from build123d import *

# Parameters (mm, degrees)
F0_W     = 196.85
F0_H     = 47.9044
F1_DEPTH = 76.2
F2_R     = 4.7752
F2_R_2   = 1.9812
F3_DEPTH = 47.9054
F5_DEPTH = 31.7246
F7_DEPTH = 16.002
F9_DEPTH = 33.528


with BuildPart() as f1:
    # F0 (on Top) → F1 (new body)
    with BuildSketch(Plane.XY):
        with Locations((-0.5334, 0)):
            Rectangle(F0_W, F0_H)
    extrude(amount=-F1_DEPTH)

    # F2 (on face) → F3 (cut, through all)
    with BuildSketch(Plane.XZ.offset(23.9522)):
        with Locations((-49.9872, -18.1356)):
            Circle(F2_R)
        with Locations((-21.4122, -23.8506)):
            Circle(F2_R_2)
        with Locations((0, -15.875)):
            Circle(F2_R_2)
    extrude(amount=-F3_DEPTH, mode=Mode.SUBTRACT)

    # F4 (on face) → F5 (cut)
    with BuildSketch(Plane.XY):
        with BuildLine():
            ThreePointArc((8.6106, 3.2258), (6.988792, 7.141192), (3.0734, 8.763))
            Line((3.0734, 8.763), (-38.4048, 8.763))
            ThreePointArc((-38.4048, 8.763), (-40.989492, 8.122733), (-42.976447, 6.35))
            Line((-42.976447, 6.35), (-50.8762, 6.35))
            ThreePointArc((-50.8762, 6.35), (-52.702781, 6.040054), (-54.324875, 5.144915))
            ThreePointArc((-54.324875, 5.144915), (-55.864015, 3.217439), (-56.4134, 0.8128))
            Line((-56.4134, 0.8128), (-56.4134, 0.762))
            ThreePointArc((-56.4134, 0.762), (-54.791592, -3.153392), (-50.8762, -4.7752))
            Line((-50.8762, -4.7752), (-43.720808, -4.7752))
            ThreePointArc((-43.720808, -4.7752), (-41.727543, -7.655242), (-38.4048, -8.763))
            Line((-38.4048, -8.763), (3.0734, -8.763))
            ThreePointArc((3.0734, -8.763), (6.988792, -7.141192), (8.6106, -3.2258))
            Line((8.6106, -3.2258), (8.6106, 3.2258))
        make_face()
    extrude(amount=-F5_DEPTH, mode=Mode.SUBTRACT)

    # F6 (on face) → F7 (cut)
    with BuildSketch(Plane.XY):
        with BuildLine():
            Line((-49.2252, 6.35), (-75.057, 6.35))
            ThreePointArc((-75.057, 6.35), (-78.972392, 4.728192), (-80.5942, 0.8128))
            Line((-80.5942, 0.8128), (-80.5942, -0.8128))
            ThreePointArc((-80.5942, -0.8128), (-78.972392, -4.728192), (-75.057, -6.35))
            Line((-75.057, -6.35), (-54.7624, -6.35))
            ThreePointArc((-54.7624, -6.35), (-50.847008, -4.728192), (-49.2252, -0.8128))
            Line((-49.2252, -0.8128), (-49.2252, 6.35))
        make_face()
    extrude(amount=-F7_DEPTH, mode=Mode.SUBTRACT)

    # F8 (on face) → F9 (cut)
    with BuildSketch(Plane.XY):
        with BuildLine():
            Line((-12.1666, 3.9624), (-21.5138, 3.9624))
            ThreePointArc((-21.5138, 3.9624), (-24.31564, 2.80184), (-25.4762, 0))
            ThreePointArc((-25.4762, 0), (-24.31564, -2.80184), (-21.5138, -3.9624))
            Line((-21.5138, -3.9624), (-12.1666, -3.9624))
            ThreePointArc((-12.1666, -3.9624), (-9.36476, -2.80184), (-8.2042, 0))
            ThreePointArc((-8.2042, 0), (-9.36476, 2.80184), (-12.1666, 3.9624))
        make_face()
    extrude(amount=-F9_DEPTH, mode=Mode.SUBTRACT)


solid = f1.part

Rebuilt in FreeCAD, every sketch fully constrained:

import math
import FreeCAD as App
import Part
import Sketcher
from FreeCAD import Vector
Q = App.Units.Quantity

doc = App.newDocument("Part")
body = doc.addObject("PartDesign::Body", "Body")

# Sketch on XY plane
sketch1 = doc.addObject("Sketcher::SketchObject", "Sketch")
body.addObject(sketch1)
sketch1.AttachmentSupport = (doc.XY_Plane, [""])
sketch1.MapMode = "FlatFace"
sketch1.addGeometry([
    Part.LineSegment(Vector(-98.9584, 23.9522, 0), Vector(-98.9584, -23.9522, 0)),
    Part.LineSegment(Vector(-98.9584, -23.9522, 0), Vector(97.8916, -23.9522, 0)),
    Part.LineSegment(Vector(97.8916, -23.9522, 0), Vector(97.8916, 23.9522, 0)),
    Part.LineSegment(Vector(97.8916, 23.9522, 0), Vector(-98.9584, 23.9522, 0)),
], False)
sketch1.addConstraint([
    Sketcher.Constraint("Coincident", 0, 2, 1, 1),
    Sketcher.Constraint("Coincident", 1, 2, 2, 1),
    Sketcher.Constraint("Coincident", 2, 2, 3, 1),
    Sketcher.Constraint("Coincident", 3, 2, 0, 1),
    Sketcher.Constraint("Vertical", 0),
    Sketcher.Constraint("Horizontal", 1),
    Sketcher.Constraint("Vertical", 2),
    Sketcher.Constraint("Horizontal", 3),
    Sketcher.Constraint("DistanceX", 1, 1, 1, 2, Q("7.75 in")),
    Sketcher.Constraint("DistanceY", 0, 2, 0, 1, Q("1.886 in")),
    Sketcher.Constraint("DistanceX", 0, 2, -1, 1, Q("3.896 in")),
    Sketcher.Constraint("DistanceY", 0, 2, -1, 1, Q("0.943 in")),
])
pad1 = doc.addObject("PartDesign::Pad", "Pad")
body.addObject(pad1)
pad1.Profile = sketch1
pad1.Length = Q("3 in")
pad1.Reversed = True

# Sketch on XZ plane
sketch2 = doc.addObject("Sketcher::SketchObject", "Sketch001")
body.addObject(sketch2)
sketch2.AttachmentSupport = (doc.XZ_Plane, [""])
sketch2.MapMode = "FlatFace"
sketch2.AttachmentOffset = App.Placement(Vector(0, 0, 0.943 * 25.4), App.Rotation())
sketch2.addGeometry([
    Part.Circle(Vector(-49.9872, -18.1356, 0), Vector(0, 0, 1), 4.7752),
    Part.Circle(Vector(-21.4122, -23.8506, 0), Vector(0, 0, 1), 1.9812),
    Part.Circle(Vector(0, -15.875, 0), Vector(0, 0, 1), 1.9812),
], False)
sketch2.addConstraint([
    Sketcher.Constraint("Equal", 1, 2),
    Sketcher.Constraint("PointOnObject", 2, 3, -2),
    Sketcher.Constraint("Diameter", 0, Q("0.376 in")),
    Sketcher.Constraint("Diameter", 1, Q("0.156 in")),
    Sketcher.Constraint("DistanceX", 0, 3, -1, 1, Q("1.968 in")),
    Sketcher.Constraint("DistanceY", 0, 3, -1, 1, Q("0.714 in")),
    Sketcher.Constraint("DistanceX", 1, 3, -1, 1, Q("0.843 in")),
    Sketcher.Constraint("DistanceY", 1, 3, -1, 1, Q("0.939 in")),
    Sketcher.Constraint("DistanceY", 2, 3, -1, 1, Q("0.625 in")),
])
pocket1 = doc.addObject("PartDesign::Pocket", "Pocket")
body.addObject(pocket1)
pocket1.Profile = sketch2
pocket1.Type = "ThroughAll"

# Sketch on XY plane
sketch3 = doc.addObject("Sketcher::SketchObject", "Sketch002")
body.addObject(sketch3)
sketch3.AttachmentSupport = (doc.XY_Plane, [""])
sketch3.MapMode = "FlatFace"
sketch3.addGeometry([
    Part.ArcOfCircle(Part.Circle(Vector(3.073401, 3.225801, 0), Vector(0, 0, 1), 5.537199), math.radians(-0.000012), math.radians(90.000012)),  # 0
    Part.LineSegment(Vector(3.0734, 8.763, 0), Vector(-38.4048, 8.763, 0)),  # 1
    Part.ArcOfCircle(Part.Circle(Vector(-38.404801, 3.225802, 0), Vector(0, 0, 1), 5.537198), math.radians(89.999992), math.radians(145.651854)),  # 2
    Part.LineSegment(Vector(-42.976447, 6.35, 0), Vector(-50.8762, 6.35, 0)),  # 3
    Part.ArcOfCircle(Part.Circle(Vector(-50.8762, 0.812801, 0), Vector(0, 0, 1), 5.537199), math.radians(90.000001), math.radians(128.522321)),  # 4
    Part.ArcOfCircle(Part.Circle(Vector(-50.876205, 0.812802, 0), Vector(0, 0, 1), 5.537195), math.radians(128.522285), math.radians(180.000018)),  # 5
    Part.LineSegment(Vector(-56.4134, 0.8128, 0), Vector(-56.4134, 0.762, 0)),  # 6
    Part.ArcOfCircle(Part.Circle(Vector(-50.876201, 0.761999, 0), Vector(0, 0, 1), 5.537199), math.radians(179.999988), math.radians(270.000012)),  # 7
    Part.LineSegment(Vector(-50.8762, -4.7752, 0), Vector(-43.720808, -4.7752, 0)),  # 8
    Part.ArcOfCircle(Part.Circle(Vector(-38.404798, -3.225798, 0), Vector(0, 0, 1), 5.537202), math.radians(-163.750732), math.radians(-90.000016)),  # 9
    Part.LineSegment(Vector(-38.4048, -8.763, 0), Vector(3.0734, -8.763, 0)),  # 10
    Part.ArcOfCircle(Part.Circle(Vector(3.073401, -3.225801, 0), Vector(0, 0, 1), 5.537199), math.radians(-90.000012), math.radians(0.000012)),  # 11
    Part.LineSegment(Vector(8.6106, -3.2258, 0), Vector(8.6106, 3.2258, 0)),  # 12
], False)
sketch3.addConstraint([
    Sketcher.Constraint("Tangent", 0, 2, 1, 1),
    Sketcher.Constraint("Tangent", 1, 2, 2, 1),
    Sketcher.Constraint("Coincident", 2, 2, 3, 1),
    Sketcher.Constraint("Tangent", 3, 2, 4, 1),
    Sketcher.Constraint("Tangent", 4, 2, 5, 1),
    Sketcher.Constraint("Tangent", 5, 2, 6, 1),
    Sketcher.Constraint("Tangent", 6, 2, 7, 1),
    Sketcher.Constraint("Tangent", 7, 2, 8, 1),
    Sketcher.Constraint("Coincident", 8, 2, 9, 1),
    Sketcher.Constraint("Tangent", 9, 2, 10, 1),
    Sketcher.Constraint("Tangent", 10, 2, 11, 1),
    Sketcher.Constraint("Tangent", 11, 2, 12, 1),
    Sketcher.Constraint("Tangent", 12, 2, 0, 1),
    Sketcher.Constraint("Horizontal", 1),
    Sketcher.Constraint("Horizontal", 3),
    Sketcher.Constraint("Vertical", 6),
    Sketcher.Constraint("Horizontal", 8),
    Sketcher.Constraint("Horizontal", 10),
    Sketcher.Constraint("Vertical", 12),
    Sketcher.Constraint("Equal", 0, 2),
    Sketcher.Constraint("Equal", 2, 4),
    Sketcher.Constraint("Equal", 4, 7),
    Sketcher.Constraint("Equal", 7, 11),
    Sketcher.Constraint("Symmetric", 2, 3, 9, 3, -1),
    Sketcher.Constraint("Horizontal", 4, 3, 5, 2),
    Sketcher.Constraint("Horizontal", 9, 3, 11, 2),
    Sketcher.Constraint("Radius", 0, Q("0.218 in")),
    Sketcher.Constraint("DistanceX", 1, 2, 1, 1, Q("1.633 in")),
    Sketcher.Constraint("DistanceY", 6, 2, 6, 1, Q("0.002 in")),
    Sketcher.Constraint("DistanceY", 12, 1, 12, 2, Q("0.254 in")),
    Sketcher.Constraint("DistanceY", -1, 1, 7, 3, Q("0.03 in")),
    Sketcher.Constraint("DistanceX", -1, 1, 0, 3, Q("0.121 in")),
    Sketcher.Constraint("DistanceX", 4, 3, -1, 1, Q("2.003 in")),
    Sketcher.Constraint("DistanceX", 4, 2, 5, 3, 3.44867),
])
pocket2 = doc.addObject("PartDesign::Pocket", "Pocket001")
body.addObject(pocket2)
pocket2.Profile = sketch3
pocket2.Length = Q("1.249 in")

# Sketch on XY plane
sketch4 = doc.addObject("Sketcher::SketchObject", "Sketch003")
body.addObject(sketch4)
sketch4.AttachmentSupport = (doc.XY_Plane, [""])
sketch4.MapMode = "FlatFace"
sketch4.addGeometry([
    Part.LineSegment(Vector(-49.2252, 6.35, 0), Vector(-75.057, 6.35, 0)),  # 0
    Part.ArcOfCircle(Part.Circle(Vector(-75.057001, 0.812801, 0), Vector(0, 0, 1), 5.537199), math.radians(89.999988), math.radians(180.000012)),  # 1
    Part.LineSegment(Vector(-80.5942, 0.8128, 0), Vector(-80.5942, -0.8128, 0)),  # 2
    Part.ArcOfCircle(Part.Circle(Vector(-75.057001, -0.812801, 0), Vector(0, 0, 1), 5.537199), math.radians(179.999988), math.radians(270.000012)),  # 3
    Part.LineSegment(Vector(-75.057, -6.35, 0), Vector(-54.7624, -6.35, 0)),  # 4
    Part.ArcOfCircle(Part.Circle(Vector(-54.762399, -0.812801, 0), Vector(0, 0, 1), 5.537199), math.radians(-90.000012), math.radians(0.000012)),  # 5
    Part.LineSegment(Vector(-49.2252, -0.8128, 0), Vector(-49.2252, 6.35, 0)),  # 6
], False)
sketch4.addConstraint([
    Sketcher.Constraint("Tangent", 0, 2, 1, 1),
    Sketcher.Constraint("Tangent", 1, 2, 2, 1),
    Sketcher.Constraint("Tangent", 2, 2, 3, 1),
    Sketcher.Constraint("Tangent", 3, 2, 4, 1),
    Sketcher.Constraint("Tangent", 4, 2, 5, 1),
    Sketcher.Constraint("Tangent", 5, 2, 6, 1),
    Sketcher.Constraint("Coincident", 6, 2, 0, 1),
    Sketcher.Constraint("Horizontal", 0),
    Sketcher.Constraint("Vertical", 2),
    Sketcher.Constraint("Horizontal", 4),
    Sketcher.Constraint("Vertical", 6),
    Sketcher.Constraint("Equal", 1, 3),
    Sketcher.Constraint("Equal", 3, 5),
    Sketcher.Constraint("Radius", 1, Q("0.218 in")),
    Sketcher.Constraint("DistanceY", 3, 2, 0, 2, Q("0.5 in")),
    Sketcher.Constraint("DistanceX", 0, 2, 0, 1, Q("1.017 in")),
    Sketcher.Constraint("DistanceY", -1, 1, 0, 2, Q("0.25 in")),
    Sketcher.Constraint("DistanceX", 1, 3, -1, 1, Q("2.955 in")),
])
pocket3 = doc.addObject("PartDesign::Pocket", "Pocket002")
body.addObject(pocket3)
pocket3.Profile = sketch4
pocket3.Length = Q("0.63 in")

# Sketch on XY plane
sketch5 = doc.addObject("Sketcher::SketchObject", "Sketch004")
body.addObject(sketch5)
sketch5.AttachmentSupport = (doc.XY_Plane, [""])
sketch5.MapMode = "FlatFace"
sketch5.addGeometry([
    Part.LineSegment(Vector(-12.1666, 3.9624, 0), Vector(-21.5138, 3.9624, 0)),  # 0
    Part.ArcOfCircle(Part.Circle(Vector(-21.5138, 0, 0), Vector(0, 0, 1), 3.9624), math.radians(89.999996), math.radians(180.000004)),  # 1
    Part.ArcOfCircle(Part.Circle(Vector(-21.5138, 0, 0), Vector(0, 0, 1), 3.9624), math.radians(179.999996), math.radians(270.000004)),  # 2
    Part.LineSegment(Vector(-21.5138, -3.9624, 0), Vector(-12.1666, -3.9624, 0)),  # 3
    Part.ArcOfCircle(Part.Circle(Vector(-12.1666, 0, 0), Vector(0, 0, 1), 3.9624), math.radians(-90.000004), math.radians(0.000004)),  # 4
    Part.ArcOfCircle(Part.Circle(Vector(-12.1666, 0, 0), Vector(0, 0, 1), 3.9624), math.radians(-0.000004), math.radians(90.000004)),  # 5
], False)
sketch5.addConstraint([
    Sketcher.Constraint("Tangent", 0, 2, 1, 1),
    Sketcher.Constraint("Tangent", 1, 2, 2, 1),
    Sketcher.Constraint("Tangent", 2, 2, 3, 1),
    Sketcher.Constraint("Tangent", 3, 2, 4, 1),
    Sketcher.Constraint("Tangent", 4, 2, 5, 1),
    Sketcher.Constraint("Tangent", 5, 2, 0, 1),
    Sketcher.Constraint("Horizontal", 0),
    Sketcher.Constraint("Horizontal", 3),
    Sketcher.Constraint("Equal", 1, 2),
    Sketcher.Constraint("Equal", 2, 4),
    Sketcher.Constraint("PointOnObject", 1, 3, -1),
    Sketcher.Constraint("PointOnObject", 1, 2, -1),
    Sketcher.Constraint("PointOnObject", 4, 2, -1),
    Sketcher.Constraint("Radius", 1, Q("0.156 in")),
    Sketcher.Constraint("DistanceX", 0, 2, 0, 1, Q("0.368 in")),
    Sketcher.Constraint("DistanceX", 1, 3, -1, 1, Q("0.847 in")),
])
pocket4 = doc.addObject("PartDesign::Pocket", "Pocket003")
body.addObject(pocket4)
pocket4.Profile = sketch5
pocket4.Length = Q("1.32 in")

doc.recompute()
